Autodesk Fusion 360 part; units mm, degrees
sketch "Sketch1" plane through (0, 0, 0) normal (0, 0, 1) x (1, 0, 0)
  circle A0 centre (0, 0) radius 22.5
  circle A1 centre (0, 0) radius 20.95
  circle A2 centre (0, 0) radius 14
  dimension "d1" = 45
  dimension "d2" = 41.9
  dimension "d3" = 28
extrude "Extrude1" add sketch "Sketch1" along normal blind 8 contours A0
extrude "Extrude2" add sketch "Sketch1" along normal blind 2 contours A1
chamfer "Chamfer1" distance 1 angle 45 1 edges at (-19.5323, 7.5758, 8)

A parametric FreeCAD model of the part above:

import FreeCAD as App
import Part
import Sketcher


def edges_at(feature, points):
    """Names of the edges that pass closest to the given points."""
    edges = feature.Shape.Edges
    near = lambda p: min(range(len(edges)), key=lambda i: edges[i].distToShape(Part.Vertex(*p))[0])
    return sorted({f"Edge{near(p) + 1}" for p in points})

doc = App.newDocument("Part")
body = doc.addObject("PartDesign::Body", "Body")

# Sketch on XY plane
sketch1 = body.newObject("Sketcher::SketchObject", "Sketch")
sketch1.AttachmentSupport = (doc.getObject("XY_Plane"), [""])
sketch1.MapMode = "FlatFace"
sketch1.addGeometry([
    Part.Circle(App.Vector(0, 0, 0), App.Vector(0, 0, 1), 22),
    Part.Circle(App.Vector(0, 0, 0), App.Vector(0, 0, 1), 21),
], False)
sketch1.addConstraint([
    Sketcher.Constraint("Coincident", 0, 3, -1, 1),
    Sketcher.Constraint("Coincident", 1, 3, -1, 1),
    Sketcher.Constraint("Diameter", 0, 45.0),
    Sketcher.Constraint("Diameter", 1, 41.9),
])
pad1 = body.newObject("PartDesign::Pad", "Pad")
pad1.Profile = sketch1
pad1.Length = 8

# Sketch on XY plane
sketch2 = body.newObject("Sketcher::SketchObject", "Sketch001")
sketch2.AttachmentSupport = (doc.getObject("XY_Plane"), [""])
sketch2.MapMode = "FlatFace"
sketch2.addGeometry([
    Part.Circle(App.Vector(0, 0, 0), App.Vector(0, 0, 1), 21),
    Part.Circle(App.Vector(0, 0, 0), App.Vector(0, 0, 1), 14),
], False)
sketch2.addConstraint([
    Sketcher.Constraint("Coincident", 0, 3, -1, 1),
    Sketcher.Constraint("Coincident", 1, 3, -1, 1),
    Sketcher.Constraint("Diameter", 1, 28.0),
    Sketcher.Constraint("Diameter", 0, 41.9),
])
pad2 = body.newObject("PartDesign::Pad", "Pad001")
pad2.Profile = sketch2
pad2.Length = 2
doc.recompute()

chamfer = body.newObject("PartDesign::Chamfer", "Chamfer")
chamfer.Base = (pad2, edges_at(pad2, [(-19.532, 7.576, 8)]))
chamfer.Size = 1

doc.recompute()
